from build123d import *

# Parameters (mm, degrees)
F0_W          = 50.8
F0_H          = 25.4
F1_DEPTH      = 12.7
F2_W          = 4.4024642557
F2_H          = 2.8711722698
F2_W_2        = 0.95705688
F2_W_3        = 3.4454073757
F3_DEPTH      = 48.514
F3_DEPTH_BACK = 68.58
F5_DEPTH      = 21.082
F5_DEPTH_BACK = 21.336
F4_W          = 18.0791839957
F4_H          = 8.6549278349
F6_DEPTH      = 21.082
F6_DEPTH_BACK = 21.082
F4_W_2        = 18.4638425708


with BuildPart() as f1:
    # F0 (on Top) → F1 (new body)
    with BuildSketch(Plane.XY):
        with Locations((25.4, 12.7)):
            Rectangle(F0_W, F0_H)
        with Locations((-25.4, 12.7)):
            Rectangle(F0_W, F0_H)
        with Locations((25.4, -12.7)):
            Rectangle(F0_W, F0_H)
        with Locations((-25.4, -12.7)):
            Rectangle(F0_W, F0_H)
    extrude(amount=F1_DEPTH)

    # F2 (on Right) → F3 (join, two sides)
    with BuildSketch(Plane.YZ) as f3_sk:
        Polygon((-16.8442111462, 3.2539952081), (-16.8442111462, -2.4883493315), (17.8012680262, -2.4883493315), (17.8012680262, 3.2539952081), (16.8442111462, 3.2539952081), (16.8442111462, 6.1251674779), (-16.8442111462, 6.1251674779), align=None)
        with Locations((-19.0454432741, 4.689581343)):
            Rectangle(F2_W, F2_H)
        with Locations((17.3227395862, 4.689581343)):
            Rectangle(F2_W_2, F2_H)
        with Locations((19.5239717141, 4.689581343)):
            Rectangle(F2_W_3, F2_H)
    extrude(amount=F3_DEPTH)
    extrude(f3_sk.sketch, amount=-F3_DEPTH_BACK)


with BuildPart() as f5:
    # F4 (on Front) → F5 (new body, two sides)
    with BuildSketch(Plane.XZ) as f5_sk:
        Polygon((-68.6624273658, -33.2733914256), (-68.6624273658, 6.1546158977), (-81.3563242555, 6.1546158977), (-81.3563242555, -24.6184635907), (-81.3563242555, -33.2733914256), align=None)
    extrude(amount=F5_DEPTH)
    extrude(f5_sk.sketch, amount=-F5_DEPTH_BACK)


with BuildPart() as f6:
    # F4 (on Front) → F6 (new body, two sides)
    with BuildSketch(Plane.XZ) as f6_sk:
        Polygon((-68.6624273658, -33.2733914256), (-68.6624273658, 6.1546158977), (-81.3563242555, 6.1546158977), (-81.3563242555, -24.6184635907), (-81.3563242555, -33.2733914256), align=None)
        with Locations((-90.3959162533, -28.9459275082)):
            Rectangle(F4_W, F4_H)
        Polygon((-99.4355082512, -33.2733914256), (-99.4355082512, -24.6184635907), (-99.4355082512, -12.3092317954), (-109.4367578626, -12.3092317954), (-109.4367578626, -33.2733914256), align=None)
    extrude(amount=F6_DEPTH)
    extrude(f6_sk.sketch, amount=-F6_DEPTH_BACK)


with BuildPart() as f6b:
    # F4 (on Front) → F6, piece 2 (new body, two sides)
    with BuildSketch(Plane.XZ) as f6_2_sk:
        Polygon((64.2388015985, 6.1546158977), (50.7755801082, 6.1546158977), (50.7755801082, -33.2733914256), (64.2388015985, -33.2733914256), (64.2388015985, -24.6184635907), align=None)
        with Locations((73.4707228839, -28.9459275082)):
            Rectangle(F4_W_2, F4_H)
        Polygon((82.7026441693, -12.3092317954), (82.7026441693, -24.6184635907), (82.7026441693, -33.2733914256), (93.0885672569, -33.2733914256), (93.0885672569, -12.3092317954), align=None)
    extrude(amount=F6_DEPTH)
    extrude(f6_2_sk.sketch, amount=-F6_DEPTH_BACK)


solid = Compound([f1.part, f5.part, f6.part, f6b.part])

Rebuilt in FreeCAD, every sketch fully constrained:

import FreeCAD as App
import Part
import Sketcher
Q = App.Units.Quantity

doc = App.newDocument("Part")
body = doc.addObject("PartDesign::Body", "Body")

# Sketch on XY plane
sketch1 = body.newObject("Sketcher::SketchObject", "Sketch")
sketch1.AttachmentSupport = (doc.getObject("XY_Plane"), [""])
sketch1.MapMode = "FlatFace"
sketch1.addGeometry([
    Part.LineSegment(App.Vector(51, 25, 0), App.Vector(-51, 25, 0)),
    Part.LineSegment(App.Vector(-51, 25, 0), App.Vector(-51, -25, 0)),
    Part.LineSegment(App.Vector(-51, -25, 0), App.Vector(51, -25, 0)),
    Part.LineSegment(App.Vector(51, -25, 0), App.Vector(51, 25, 0)),
], False)
sketch1.addConstraint([
    Sketcher.Constraint("Coincident", 0, 2, 1, 1),
    Sketcher.Constraint("Coincident", 1, 2, 2, 1),
    Sketcher.Constraint("Coincident", 2, 2, 3, 1),
    Sketcher.Constraint("Coincident", 3, 2, 0, 1),
    Sketcher.Constraint("Horizontal", 0),
    Sketcher.Constraint("Vertical", 1),
    Sketcher.Constraint("Horizontal", 2),
    Sketcher.Constraint("Vertical", 3),
    Sketcher.Constraint("Symmetric", 0, 2, 2, 2, -1, 1),
    Sketcher.Constraint("DistanceX", 0, 2, 0, 1, Q("4 in")),
    Sketcher.Constraint("DistanceY", 1, 2, 1, 1, Q("2 in")),
])
pad1 = body.newObject("PartDesign::Pad", "Pad")
pad1.Profile = sketch1
pad1.Length = Q("0.5 in")

# Sketch on YZ plane
sketch2 = body.newObject("Sketcher::SketchObject", "Sketch001")
sketch2.AttachmentSupport = (doc.getObject("YZ_Plane"), [""])
sketch2.MapMode = "FlatFace"
sketch2.addGeometry([
    Part.LineSegment(App.Vector(-16.8, -2.5, 0), App.Vector(17.8, -2.5, 0)),  # 0
    Part.LineSegment(App.Vector(17.8, -2.5, 0), App.Vector(17.8, 3.3, 0)),  # 1
    Part.LineSegment(App.Vector(17.8, 3.3, 0), App.Vector(21.2, 3.3, 0)),  # 2
    Part.LineSegment(App.Vector(21.2, 3.3, 0), App.Vector(21.2, 6.1, 0)),  # 3
    Part.LineSegment(App.Vector(21.2, 6.1, 0), App.Vector(-21.2, 6.1, 0)),  # 4
    Part.LineSegment(App.Vector(-21.2, 6.1, 0), App.Vector(-21.2, 3.3, 0)),  # 5
    Part.LineSegment(App.Vector(-21.2, 3.3, 0), App.Vector(-16.8, 3.3, 0)),  # 6
    Part.LineSegment(App.Vector(-16.8, 3.3, 0), App.Vector(-16.8, -2.5, 0)),  # 7
], False)
sketch2.addConstraint([
    Sketcher.Constraint("Coincident", 0, 2, 1, 1),
    Sketcher.Constraint("Coincident", 1, 2, 2, 1),
    Sketcher.Constraint("Coincident", 2, 2, 3, 1),
    Sketcher.Constraint("Coincident", 3, 2, 4, 1),
    Sketcher.Constraint("Coincident", 4, 2, 5, 1),
    Sketcher.Constraint("Coincident", 5, 2, 6, 1),
    Sketcher.Constraint("Coincident", 6, 2, 7, 1),
    Sketcher.Constraint("Coincident", 7, 2, 0, 1),
    Sketcher.Constraint("Horizontal", 0),
    Sketcher.Constraint("Vertical", 1),
    Sketcher.Constraint("Horizontal", 2),
    Sketcher.Constraint("Vertical", 3),
    Sketcher.Constraint("Horizontal", 4),
    Sketcher.Constraint("Vertical", 5),
    Sketcher.Constraint("Horizontal", 6),
    Sketcher.Constraint("Vertical", 7),
    Sketcher.Constraint("Symmetric", 2, 2, 5, 2, -2),
    Sketcher.Constraint("DistanceX", 0, 1, 0, 2, Q("34.645479 mm")),
    Sketcher.Constraint("DistanceX", 4, 2, 4, 1, Q("42.493351 mm")),
    Sketcher.Constraint("DistanceX", 2, 1, 2, 2, Q("3.445407 mm")),
    Sketcher.Constraint("DistanceY", 1, 1, 1, 2, Q("5.742345 mm")),
    Sketcher.Constraint("DistanceY", 3, 1, 3, 2, Q("2.871172 mm")),
    Sketcher.Constraint("DistanceY", 0, 2, -1, 1, Q("2.488349 mm")),
])
pad2 = body.newObject("PartDesign::Pad", "Pad001")
pad2.Profile = sketch2
pad2.Type = "TwoLengths"
pad2.Length = Q("1.91 in")
pad2.Length2 = Q("2.7 in")
body2 = doc.addObject("PartDesign::Body", "Body001")

# Sketch on XZ plane
sketch3 = body2.newObject("Sketcher::SketchObject", "Sketch002")
sketch3.AttachmentSupport = (doc.getObject("XZ_Plane001"), [""])
sketch3.MapMode = "FlatFace"
sketch3.addGeometry([
    Part.LineSegment(App.Vector(-69, -33, 0), App.Vector(-69, 6, 0)),
    Part.LineSegment(App.Vector(-69, 6, 0), App.Vector(-81, 6, 0)),
    Part.LineSegment(App.Vector(-81, 6, 0), App.Vector(-81, -33, 0)),
    Part.LineSegment(App.Vector(-81, -33, 0), App.Vector(-69, -33, 0)),
], False)
sketch3.addConstraint([
    Sketcher.Constraint("Coincident", 0, 2, 1, 1),
    Sketcher.Constraint("Coincident", 1, 2, 2, 1),
    Sketcher.Constraint("Coincident", 2, 2, 3, 1),
    Sketcher.Constraint("Coincident", 3, 2, 0, 1),
    Sketcher.Constraint("Vertical", 0),
    Sketcher.Constraint("Horizontal", 1),
    Sketcher.Constraint("Vertical", 2),
    Sketcher.Constraint("Horizontal", 3),
    Sketcher.Constraint("DistanceX", 1, 2, 1, 1, Q("12.693897 mm")),
    Sketcher.Constraint("DistanceY", 0, 1, 0, 2, Q("39.428007 mm")),
    Sketcher.Constraint("DistanceY", 2, 2, -1, 1, Q("33.273391 mm")),
    Sketcher.Constraint("DistanceX", 0, 2, -1, 1, Q("68.662427 mm")),
])
pad3 = body2.newObject("PartDesign::Pad", "Pad002")
pad3.Profile = sketch3
pad3.Type = "TwoLengths"
pad3.Length = Q("0.83 in")
pad3.Length2 = Q("0.84 in")
body3 = doc.addObject("PartDesign::Body", "Body002")

# Sketch on XZ plane
sketch4 = body3.newObject("Sketcher::SketchObject", "Sketch003")
sketch4.AttachmentSupport = (doc.getObject("XZ_Plane002"), [""])
sketch4.MapMode = "FlatFace"
sketch4.addGeometry([
    Part.LineSegment(App.Vector(-69, -33, 0), App.Vector(-69, 6, 0)),  # 0
    Part.LineSegment(App.Vector(-69, 6, 0), App.Vector(-81, 6, 0)),  # 1
    Part.LineSegment(App.Vector(-81, 6, 0), App.Vector(-81, -25, 0)),  # 2
    Part.LineSegment(App.Vector(-81, -25, 0), App.Vector(-99, -25, 0)),  # 3
    Part.LineSegment(App.Vector(-99, -25, 0), App.Vector(-99, -12, 0)),  # 4
    Part.LineSegment(App.Vector(-99, -12, 0), App.Vector(-109, -12, 0)),  # 5
    Part.LineSegment(App.Vector(-109, -12, 0), App.Vector(-109, -33, 0)),  # 6
    Part.LineSegment(App.Vector(-109, -33, 0), App.Vector(-99, -33, 0)),  # 7
    Part.LineSegment(App.Vector(-99, -33, 0), App.Vector(-81, -33, 0)),  # 8
    Part.LineSegment(App.Vector(-81, -33, 0), App.Vector(-69, -33, 0)),  # 9
], False)
sketch4.addConstraint([
    Sketcher.Constraint("Coincident", 0, 2, 1, 1),
    Sketcher.Constraint("Coincident", 1, 2, 2, 1),
    Sketcher.Constraint("Coincident", 2, 2, 3, 1),
    Sketcher.Constraint("Coincident", 3, 2, 4, 1),
    Sketcher.Constraint("Coincident", 4, 2, 5, 1),
    Sketcher.Constraint("Coincident", 5, 2, 6, 1),
    Sketcher.Constraint("Coincident", 6, 2, 7, 1),
    Sketcher.Constraint("Coincident", 7, 2, 8, 1),
    Sketcher.Constraint("Coincident", 8, 2, 9, 1),
    Sketcher.Constraint("Coincident", 9, 2, 0, 1),
    Sketcher.Constraint("Vertical", 0),
    Sketcher.Constraint("Horizontal", 1),
    Sketcher.Constraint("Vertical", 2),
    Sketcher.Constraint("Horizontal", 3),
    Sketcher.Constraint("Vertical", 4),
    Sketcher.Constraint("Horizontal", 5),
    Sketcher.Constraint("Vertical", 6),
    Sketcher.Constraint("Horizontal", 7),
    Sketcher.Constraint("Horizontal", 8),
    Sketcher.Constraint("Horizontal", 9),
    Sketcher.Constraint("Vertical", 4, 2, 7, 2),
    Sketcher.Constraint("Vertical", 2, 2, 8, 2),
    Sketcher.Constraint("DistanceX", 5, 2, 5, 1, Q("10.00125 mm")),
    Sketcher.Constraint("DistanceY", 2, 2, 2, 1, Q("30.773079 mm")),
    Sketcher.Constraint("DistanceY", 4, 1, 4, 2, Q("12.309232 mm")),
    Sketcher.Constraint("DistanceY", 6, 2, 6, 1, Q("20.96416 mm")),
    Sketcher.Constraint("DistanceX", 1, 2, 1, 1, Q("12.693897 mm")),
    Sketcher.Constraint("DistanceX", 3, 2, 3, 1, Q("18.079184 mm")),
    Sketcher.Constraint("DistanceX", 3, 2, -1, 1, Q("99.435508 mm")),
    Sketcher.Constraint("DistanceY", 4, 2, -1, 1, Q("12.309232 mm")),
])
pad4 = body3.newObject("PartDesign::Pad", "Pad003")
pad4.Profile = sketch4
pad4.Type = "TwoLengths"
pad4.Length = Q("0.83 in")
pad4.Length2 = Q("0.83 in")
body4 = doc.addObject("PartDesign::Body", "Body003")

# Sketch on XZ plane
sketch5 = body4.newObject("Sketcher::SketchObject", "Sketch004")
sketch5.AttachmentSupport = (doc.getObject("XZ_Plane003"), [""])
sketch5.MapMode = "FlatFace"
sketch5.addGeometry([
    Part.LineSegment(App.Vector(64, 6, 0), App.Vector(51, 6, 0)),  # 0
    Part.LineSegment(App.Vector(51, 6, 0), App.Vector(51, -33, 0)),  # 1
    Part.LineSegment(App.Vector(51, -33, 0), App.Vector(64, -33, 0)),  # 2
    Part.LineSegment(App.Vector(64, -33, 0), App.Vector(83, -33, 0)),  # 3
    Part.LineSegment(App.Vector(83, -33, 0), App.Vector(93, -33, 0)),  # 4
    Part.LineSegment(App.Vector(93, -33, 0), App.Vector(93, -12, 0)),  # 5
    Part.LineSegment(App.Vector(93, -12, 0), App.Vector(83, -12, 0)),  # 6
    Part.LineSegment(App.Vector(83, -12, 0), App.Vector(83, -25, 0)),  # 7
    Part.LineSegment(App.Vector(83, -25, 0), App.Vector(64, -25, 0)),  # 8
    Part.LineSegment(App.Vector(64, -25, 0), App.Vector(64, 6, 0)),  # 9
], False)
sketch5.addConstraint([
    Sketcher.Constraint("Coincident", 0, 2, 1, 1),
    Sketcher.Constraint("Coincident", 1, 2, 2, 1),
    Sketcher.Constraint("Coincident", 2, 2, 3, 1),
    Sketcher.Constraint("Coincident", 3, 2, 4, 1),
    Sketcher.Constraint("Coincident", 4, 2, 5, 1),
    Sketcher.Constraint("Coincident", 5, 2, 6, 1),
    Sketcher.Constraint("Coincident", 6, 2, 7, 1),
    Sketcher.Constraint("Coincident", 7, 2, 8, 1),
    Sketcher.Constraint("Coincident", 8, 2, 9, 1),
    Sketcher.Constraint("Coincident", 9, 2, 0, 1),
    Sketcher.Constraint("Horizontal", 0),
    Sketcher.Constraint("Vertical", 1),
    Sketcher.Constraint("Horizontal", 2),
    Sketcher.Constraint("Horizontal", 3),
    Sketcher.Constraint("Horizontal", 4),
    Sketcher.Constraint("Vertical", 5),
    Sketcher.Constraint("Horizontal", 6),
    Sketcher.Constraint("Vertical", 7),
    Sketcher.Constraint("Horizontal", 8),
    Sketcher.Constraint("Vertical", 9),
    Sketcher.Constraint("Vertical", 3, 2, 6, 2),
    Sketcher.Constraint("Vertical", 2, 2, 8, 2),
    Sketcher.Constraint("DistanceX", 0, 2, 0, 1, Q("13.463221 mm")),
    Sketcher.Constraint("DistanceY", 5, 1, 5, 2, Q("20.96416 mm")),
    Sketcher.Constraint("DistanceY", 7, 2, 7, 1, Q("12.309232 mm")),
    Sketcher.Constraint("DistanceY", 9, 1, 9, 2, Q("30.773079 mm")),
    Sketcher.Constraint("DistanceX", -1, 1, 2, 2, Q("64.238802 mm")),
    Sketcher.Constraint("DistanceX", 3, 1, 3, 2, Q("18.463843 mm")),
    Sketcher.Constraint("DistanceX", 4, 1, 4, 2, Q("10.385923 mm")),
    Sketcher.Constraint("DistanceY", 1, 2, -1, 1, Q("33.273391 mm")),
])
pad5 = body4.newObject("PartDesign::Pad", "Pad004")
pad5.Profile = sketch5
pad5.Type = "TwoLengths"
pad5.Length = Q("0.83 in")
pad5.Length2 = Q("0.83 in")

doc.recompute()
